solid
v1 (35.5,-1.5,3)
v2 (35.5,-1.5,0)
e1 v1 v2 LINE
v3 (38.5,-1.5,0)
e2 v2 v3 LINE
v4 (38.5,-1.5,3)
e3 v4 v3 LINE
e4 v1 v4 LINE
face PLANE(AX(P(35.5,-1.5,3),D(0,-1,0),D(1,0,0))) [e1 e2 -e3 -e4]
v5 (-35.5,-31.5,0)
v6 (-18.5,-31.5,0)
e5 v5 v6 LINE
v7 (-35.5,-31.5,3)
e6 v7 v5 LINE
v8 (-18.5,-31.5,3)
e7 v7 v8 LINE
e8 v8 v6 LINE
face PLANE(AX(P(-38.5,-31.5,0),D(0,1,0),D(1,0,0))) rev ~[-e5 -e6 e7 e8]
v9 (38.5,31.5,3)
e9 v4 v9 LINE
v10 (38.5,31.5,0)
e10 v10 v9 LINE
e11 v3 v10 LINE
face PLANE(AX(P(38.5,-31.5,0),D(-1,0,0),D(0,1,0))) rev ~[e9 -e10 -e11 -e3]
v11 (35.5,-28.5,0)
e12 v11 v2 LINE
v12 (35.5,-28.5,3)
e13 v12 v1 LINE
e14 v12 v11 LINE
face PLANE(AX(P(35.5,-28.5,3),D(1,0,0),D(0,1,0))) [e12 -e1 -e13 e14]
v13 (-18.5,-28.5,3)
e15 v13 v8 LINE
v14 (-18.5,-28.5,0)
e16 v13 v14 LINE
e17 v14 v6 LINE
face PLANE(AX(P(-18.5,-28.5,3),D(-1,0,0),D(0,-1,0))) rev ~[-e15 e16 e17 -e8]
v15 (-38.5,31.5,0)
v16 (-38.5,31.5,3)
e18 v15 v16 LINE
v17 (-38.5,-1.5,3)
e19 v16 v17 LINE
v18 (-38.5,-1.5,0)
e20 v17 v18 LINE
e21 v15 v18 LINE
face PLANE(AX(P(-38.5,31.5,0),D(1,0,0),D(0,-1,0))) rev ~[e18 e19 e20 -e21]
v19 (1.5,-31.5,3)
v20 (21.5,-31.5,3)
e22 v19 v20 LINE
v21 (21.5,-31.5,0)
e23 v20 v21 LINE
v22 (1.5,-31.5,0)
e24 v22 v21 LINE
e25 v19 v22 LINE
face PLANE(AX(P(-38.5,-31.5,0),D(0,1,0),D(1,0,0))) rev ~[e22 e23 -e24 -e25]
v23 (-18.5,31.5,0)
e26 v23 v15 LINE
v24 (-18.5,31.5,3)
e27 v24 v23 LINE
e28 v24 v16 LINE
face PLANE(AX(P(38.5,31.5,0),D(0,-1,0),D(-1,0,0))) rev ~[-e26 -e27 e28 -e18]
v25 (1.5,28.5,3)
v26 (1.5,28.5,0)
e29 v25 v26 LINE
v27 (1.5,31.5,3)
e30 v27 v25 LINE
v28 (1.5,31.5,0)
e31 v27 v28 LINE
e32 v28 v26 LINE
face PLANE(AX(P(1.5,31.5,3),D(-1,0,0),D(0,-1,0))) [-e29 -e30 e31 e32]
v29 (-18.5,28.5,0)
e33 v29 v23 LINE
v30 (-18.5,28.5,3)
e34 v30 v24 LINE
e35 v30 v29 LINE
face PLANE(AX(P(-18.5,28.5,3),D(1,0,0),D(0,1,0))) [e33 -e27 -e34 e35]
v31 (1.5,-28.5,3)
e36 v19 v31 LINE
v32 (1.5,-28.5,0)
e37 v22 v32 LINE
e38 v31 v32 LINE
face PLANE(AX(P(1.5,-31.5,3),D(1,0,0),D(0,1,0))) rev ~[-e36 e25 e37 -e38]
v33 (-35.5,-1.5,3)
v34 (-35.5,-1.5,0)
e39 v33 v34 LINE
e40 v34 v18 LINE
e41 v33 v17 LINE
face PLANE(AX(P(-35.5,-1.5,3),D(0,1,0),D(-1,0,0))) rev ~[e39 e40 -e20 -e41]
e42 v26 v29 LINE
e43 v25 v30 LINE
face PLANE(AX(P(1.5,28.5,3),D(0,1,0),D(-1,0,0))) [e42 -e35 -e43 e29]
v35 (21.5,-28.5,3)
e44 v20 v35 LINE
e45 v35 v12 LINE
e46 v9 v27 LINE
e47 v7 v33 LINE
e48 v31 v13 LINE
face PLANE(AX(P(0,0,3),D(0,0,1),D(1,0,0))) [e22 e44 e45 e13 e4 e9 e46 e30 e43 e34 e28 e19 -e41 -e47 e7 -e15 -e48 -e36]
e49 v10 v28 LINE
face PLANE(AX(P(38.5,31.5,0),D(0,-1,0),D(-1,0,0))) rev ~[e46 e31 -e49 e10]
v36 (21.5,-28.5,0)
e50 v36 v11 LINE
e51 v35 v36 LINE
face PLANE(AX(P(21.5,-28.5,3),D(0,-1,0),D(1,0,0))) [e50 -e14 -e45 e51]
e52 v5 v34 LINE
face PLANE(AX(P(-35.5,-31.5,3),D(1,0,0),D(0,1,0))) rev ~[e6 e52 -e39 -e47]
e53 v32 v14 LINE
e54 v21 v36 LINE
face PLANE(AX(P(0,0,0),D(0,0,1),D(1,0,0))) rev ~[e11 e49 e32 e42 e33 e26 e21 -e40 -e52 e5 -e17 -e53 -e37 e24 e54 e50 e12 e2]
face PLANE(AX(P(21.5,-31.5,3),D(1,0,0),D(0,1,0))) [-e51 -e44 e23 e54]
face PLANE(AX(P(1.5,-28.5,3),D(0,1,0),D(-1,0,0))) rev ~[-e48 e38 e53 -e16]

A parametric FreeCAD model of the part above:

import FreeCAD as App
import Part
import Sketcher

doc = App.newDocument("Part")
body = doc.addObject("PartDesign::Body", "Body")

sketch1 = body.newObject("Sketcher::SketchObject", "Sketch")
sketch1.AttachmentSupport = (doc.getObject("XY_Plane"), [""])
sketch1.MapMode = "FlatFace"
sketch1.addGeometry(Part.LineSegment(App.Vector(-38, 32, 0), App.Vector(-38, -32, 0)), False)
sketch1.addGeometry(Part.LineSegment(App.Vector(-38, -32, 0), App.Vector(38, -32, 0)), False)
sketch1.addGeometry(Part.LineSegment(App.Vector(38, -32, 0), App.Vector(38, 32, 0)), False)
sketch1.addGeometry(Part.LineSegment(App.Vector(38, 32, 0), App.Vector(-38, 32, 0)), False)
sketch1.addConstraint(Sketcher.Constraint("Coincident", 0, 2, 1, 1))
sketch1.addConstraint(Sketcher.Constraint("Coincident", 1, 2, 2, 1))
sketch1.addConstraint(Sketcher.Constraint("Coincident", 2, 2, 3, 1))
sketch1.addConstraint(Sketcher.Constraint("Coincident", 3, 2, 0, 1))
sketch1.addConstraint(Sketcher.Constraint("Vertical", 0))
sketch1.addConstraint(Sketcher.Constraint("Horizontal", 1))
sketch1.addConstraint(Sketcher.Constraint("Vertical", 2))
sketch1.addConstraint(Sketcher.Constraint("Horizontal", 3))
sketch1.addConstraint(Sketcher.Constraint("Symmetric", 0, 2, 2, 2, -1, 1))
sketch1.addConstraint(Sketcher.Constraint("DistanceX", 1, 1, 1, 2, 77.0))
sketch1.addConstraint(Sketcher.Constraint("DistanceY", 0, 2, 0, 1, 63.0))
pad1 = body.newObject("PartDesign::Pad", "Pad")
pad1.Profile = sketch1
pad1.Length = 3

sketch2 = body.newObject("Sketcher::SketchObject", "Sketch001")
sketch2.AttachmentSupport = (doc.getObject("XY_Plane"), [""])
sketch2.MapMode = "FlatFace"
sketch2.AttachmentOffset = App.Placement(App.Vector(0, 0, 3), App.Rotation())
sketch2.addGeometry(Part.LineSegment(App.Vector(-35.5, -1.5, 0), App.Vector(-38.5, -1.5, 0)), False)
sketch2.addGeometry(Part.LineSegment(App.Vector(-38.5, -1.5, 0), App.Vector(-38.5, -31.5, 0)), False)
sketch2.addGeometry(Part.LineSegment(App.Vector(-38.5, -31.5, 0), App.Vector(-35.5, -31.5, 0)), False)
sketch2.addGeometry(Part.LineSegment(App.Vector(-35.5, -31.5, 0), App.Vector(-35.5, -1.5, 0)), False)
sketch2.addGeometry(Part.LineSegment(App.Vector(21.5, -28.5, 0), App.Vector(21.5, -31.5, 0)), False)
sketch2.addGeometry(Part.LineSegment(App.Vector(21.5, -31.5, 0), App.Vector(38.5, -31.5, 0)), False)
sketch2.addGeometry(Part.LineSegment(App.Vector(38.5, -31.5, 0), App.Vector(38.5, -1.5, 0)), False)
sketch2.addGeometry(Part.LineSegment(App.Vector(38.5, -1.5, 0), App.Vector(35.5, -1.5, 0)), False)
sketch2.addGeometry(Part.LineSegment(App.Vector(35.5, -1.5, 0), App.Vector(35.5, -28.5, 0)), False)
sketch2.addGeometry(Part.LineSegment(App.Vector(35.5, -28.5, 0), App.Vector(21.5, -28.5, 0)), False)
sketch2.addGeometry(Part.LineSegment(App.Vector(-18.5, -28.5, 0), App.Vector(-18.5, -31.5, 0)), False)
sketch2.addGeometry(Part.LineSegment(App.Vector(-18.5, -31.5, 0), App.Vector(1.5, -31.5, 0)), False)
sketch2.addGeometry(Part.LineSegment(App.Vector(1.5, -31.5, 0), App.Vector(1.5, -28.5, 0)), False)
sketch2.addGeometry(Part.LineSegment(App.Vector(1.5, -28.5, 0), App.Vector(-18.5, -28.5, 0)), False)
sketch2.addConstraint(Sketcher.Constraint("Coincident", 0, 2, 1, 1))
sketch2.addConstraint(Sketcher.Constraint("Coincident", 1, 2, 2, 1))
sketch2.addConstraint(Sketcher.Constraint("Coincident", 2, 2, 3, 1))
sketch2.addConstraint(Sketcher.Constraint("Coincident", 3, 2, 0, 1))
sketch2.addConstraint(Sketcher.Constraint("Coincident", 4, 2, 5, 1))
sketch2.addConstraint(Sketcher.Constraint("Coincident", 5, 2, 6, 1))
sketch2.addConstraint(Sketcher.Constraint("Coincident", 6, 2, 7, 1))
sketch2.addConstraint(Sketcher.Constraint("Coincident", 7, 2, 8, 1))
sketch2.addConstraint(Sketcher.Constraint("Coincident", 8, 2, 9, 1))
sketch2.addConstraint(Sketcher.Constraint("Coincident", 9, 2, 4, 1))
sketch2.addConstraint(Sketcher.Constraint("Coincident", 10, 2, 11, 1))
sketch2.addConstraint(Sketcher.Constraint("Coincident", 11, 2, 12, 1))
sketch2.addConstraint(Sketcher.Constraint("Coincident", 12, 2, 13, 1))
sketch2.addConstraint(Sketcher.Constraint("Coincident", 13, 2, 10, 1))
sketch2.addConstraint(Sketcher.Constraint("Horizontal", 0))
sketch2.addConstraint(Sketcher.Constraint("Vertical", 1))
sketch2.addConstraint(Sketcher.Constraint("Horizontal", 2))
sketch2.addConstraint(Sketcher.Constraint("Vertical", 3))
sketch2.addConstraint(Sketcher.Constraint("Vertical", 4))
sketch2.addConstraint(Sketcher.Constraint("Horizontal", 5))
sketch2.addConstraint(Sketcher.Constraint("Vertical", 6))
sketch2.addConstraint(Sketcher.Constraint("Horizontal", 7))
sketch2.addConstraint(Sketcher.Constraint("Vertical", 8))
sketch2.addConstraint(Sketcher.Constraint("Horizontal", 9))
sketch2.addConstraint(Sketcher.Constraint("Vertical", 10))
sketch2.addConstraint(Sketcher.Constraint("Horizontal", 11))
sketch2.addConstraint(Sketcher.Constraint("Vertical", 12))
sketch2.addConstraint(Sketcher.Constraint("Horizontal", 13))
sketch2.addConstraint(Sketcher.Constraint("Symmetric", 1, 2, 5, 2, -2))
sketch2.addConstraint(Sketcher.Constraint("Symmetric", 3, 2, 7, 2, -2))
sketch2.addConstraint(Sketcher.Constraint("Horizontal", 5, 2, 10, 2))
sketch2.addConstraint(Sketcher.Constraint("Horizontal", 9, 2, 12, 2))
sketch2.addConstraint(Sketcher.Constraint("Equal", 7, 4))
sketch2.addConstraint(Sketcher.Constraint("DistanceX", 0, 2, 0, 1, 3.0))
sketch2.addConstraint(Sketcher.Constraint("DistanceX", 11, 1, 11, 2, 20.0))
sketch2.addConstraint(Sketcher.Constraint("DistanceY", 1, 2, 1, 1, 30.0))
sketch2.addConstraint(Sketcher.Constraint("DistanceX", 1, 2, 10, 2, 20.0))
sketch2.addConstraint(Sketcher.Constraint("DistanceX", 11, 2, 4, 2, 20.0))
sketch2.addConstraint(Sketcher.Constraint("DistanceX", 5, 1, 5, 2, 17.0))
sketch2.addConstraint(Sketcher.Constraint("DistanceY", 0, 2, -1, 1, 1.5))
pocket1 = body.newObject("PartDesign::Pocket", "Pocket")
pocket1.Profile = sketch2
pocket1.Type = "ThroughAll"

sketch3 = body.newObject("Sketcher::SketchObject", "Sketch002")
sketch3.AttachmentSupport = (doc.getObject("XY_Plane"), [""])
sketch3.MapMode = "FlatFace"
sketch3.AttachmentOffset = App.Placement(App.Vector(0, 0, 3), App.Rotation())
sketch3.addGeometry(Part.LineSegment(App.Vector(1.5, 28.5, 0), App.Vector(1.5, 31.5, 0)), False)
sketch3.addGeometry(Part.LineSegment(App.Vector(1.5, 31.5, 0), App.Vector(-18.5, 31.5, 0)), False)
sketch3.addGeometry(Part.LineSegment(App.Vector(-18.5, 31.5, 0), App.Vector(-18.5, 28.5, 0)), False)
sketch3.addGeometry(Part.LineSegment(App.Vector(-18.5, 28.5, 0), App.Vector(1.5, 28.5, 0)), False)
sketch3.addConstraint(Sketcher.Constraint("Coincident", 0, 2, 1, 1))
sketch3.addConstraint(Sketcher.Constraint("Coincident", 1, 2, 2, 1))
sketch3.addConstraint(Sketcher.Constraint("Coincident", 2, 2, 3, 1))
sketch3.addConstraint(Sketcher.Constraint("Coincident", 3, 2, 0, 1))
sketch3.addConstraint(Sketcher.Constraint("Vertical", 0))
sketch3.addConstraint(Sketcher.Constraint("Horizontal", 1))
sketch3.addConstraint(Sketcher.Constraint("Vertical", 2))
sketch3.addConstraint(Sketcher.Constraint("Horizontal", 3))
sketch3.addConstraint(Sketcher.Constraint("DistanceX", 1, 2, 1, 1, 20.0))
sketch3.addConstraint(Sketcher.Constraint("DistanceY", 0, 1, 0, 2, 3.0))
sketch3.addConstraint(Sketcher.Constraint("DistanceX", -1, 1, 0, 2, 1.5))
sketch3.addConstraint(Sketcher.Constraint("DistanceY", -1, 1, 0, 2, 31.5))
pocket2 = body.newObject("PartDesign::Pocket", "Pocket001")
pocket2.Profile = sketch3
pocket2.Length = 3

doc.recompute()
